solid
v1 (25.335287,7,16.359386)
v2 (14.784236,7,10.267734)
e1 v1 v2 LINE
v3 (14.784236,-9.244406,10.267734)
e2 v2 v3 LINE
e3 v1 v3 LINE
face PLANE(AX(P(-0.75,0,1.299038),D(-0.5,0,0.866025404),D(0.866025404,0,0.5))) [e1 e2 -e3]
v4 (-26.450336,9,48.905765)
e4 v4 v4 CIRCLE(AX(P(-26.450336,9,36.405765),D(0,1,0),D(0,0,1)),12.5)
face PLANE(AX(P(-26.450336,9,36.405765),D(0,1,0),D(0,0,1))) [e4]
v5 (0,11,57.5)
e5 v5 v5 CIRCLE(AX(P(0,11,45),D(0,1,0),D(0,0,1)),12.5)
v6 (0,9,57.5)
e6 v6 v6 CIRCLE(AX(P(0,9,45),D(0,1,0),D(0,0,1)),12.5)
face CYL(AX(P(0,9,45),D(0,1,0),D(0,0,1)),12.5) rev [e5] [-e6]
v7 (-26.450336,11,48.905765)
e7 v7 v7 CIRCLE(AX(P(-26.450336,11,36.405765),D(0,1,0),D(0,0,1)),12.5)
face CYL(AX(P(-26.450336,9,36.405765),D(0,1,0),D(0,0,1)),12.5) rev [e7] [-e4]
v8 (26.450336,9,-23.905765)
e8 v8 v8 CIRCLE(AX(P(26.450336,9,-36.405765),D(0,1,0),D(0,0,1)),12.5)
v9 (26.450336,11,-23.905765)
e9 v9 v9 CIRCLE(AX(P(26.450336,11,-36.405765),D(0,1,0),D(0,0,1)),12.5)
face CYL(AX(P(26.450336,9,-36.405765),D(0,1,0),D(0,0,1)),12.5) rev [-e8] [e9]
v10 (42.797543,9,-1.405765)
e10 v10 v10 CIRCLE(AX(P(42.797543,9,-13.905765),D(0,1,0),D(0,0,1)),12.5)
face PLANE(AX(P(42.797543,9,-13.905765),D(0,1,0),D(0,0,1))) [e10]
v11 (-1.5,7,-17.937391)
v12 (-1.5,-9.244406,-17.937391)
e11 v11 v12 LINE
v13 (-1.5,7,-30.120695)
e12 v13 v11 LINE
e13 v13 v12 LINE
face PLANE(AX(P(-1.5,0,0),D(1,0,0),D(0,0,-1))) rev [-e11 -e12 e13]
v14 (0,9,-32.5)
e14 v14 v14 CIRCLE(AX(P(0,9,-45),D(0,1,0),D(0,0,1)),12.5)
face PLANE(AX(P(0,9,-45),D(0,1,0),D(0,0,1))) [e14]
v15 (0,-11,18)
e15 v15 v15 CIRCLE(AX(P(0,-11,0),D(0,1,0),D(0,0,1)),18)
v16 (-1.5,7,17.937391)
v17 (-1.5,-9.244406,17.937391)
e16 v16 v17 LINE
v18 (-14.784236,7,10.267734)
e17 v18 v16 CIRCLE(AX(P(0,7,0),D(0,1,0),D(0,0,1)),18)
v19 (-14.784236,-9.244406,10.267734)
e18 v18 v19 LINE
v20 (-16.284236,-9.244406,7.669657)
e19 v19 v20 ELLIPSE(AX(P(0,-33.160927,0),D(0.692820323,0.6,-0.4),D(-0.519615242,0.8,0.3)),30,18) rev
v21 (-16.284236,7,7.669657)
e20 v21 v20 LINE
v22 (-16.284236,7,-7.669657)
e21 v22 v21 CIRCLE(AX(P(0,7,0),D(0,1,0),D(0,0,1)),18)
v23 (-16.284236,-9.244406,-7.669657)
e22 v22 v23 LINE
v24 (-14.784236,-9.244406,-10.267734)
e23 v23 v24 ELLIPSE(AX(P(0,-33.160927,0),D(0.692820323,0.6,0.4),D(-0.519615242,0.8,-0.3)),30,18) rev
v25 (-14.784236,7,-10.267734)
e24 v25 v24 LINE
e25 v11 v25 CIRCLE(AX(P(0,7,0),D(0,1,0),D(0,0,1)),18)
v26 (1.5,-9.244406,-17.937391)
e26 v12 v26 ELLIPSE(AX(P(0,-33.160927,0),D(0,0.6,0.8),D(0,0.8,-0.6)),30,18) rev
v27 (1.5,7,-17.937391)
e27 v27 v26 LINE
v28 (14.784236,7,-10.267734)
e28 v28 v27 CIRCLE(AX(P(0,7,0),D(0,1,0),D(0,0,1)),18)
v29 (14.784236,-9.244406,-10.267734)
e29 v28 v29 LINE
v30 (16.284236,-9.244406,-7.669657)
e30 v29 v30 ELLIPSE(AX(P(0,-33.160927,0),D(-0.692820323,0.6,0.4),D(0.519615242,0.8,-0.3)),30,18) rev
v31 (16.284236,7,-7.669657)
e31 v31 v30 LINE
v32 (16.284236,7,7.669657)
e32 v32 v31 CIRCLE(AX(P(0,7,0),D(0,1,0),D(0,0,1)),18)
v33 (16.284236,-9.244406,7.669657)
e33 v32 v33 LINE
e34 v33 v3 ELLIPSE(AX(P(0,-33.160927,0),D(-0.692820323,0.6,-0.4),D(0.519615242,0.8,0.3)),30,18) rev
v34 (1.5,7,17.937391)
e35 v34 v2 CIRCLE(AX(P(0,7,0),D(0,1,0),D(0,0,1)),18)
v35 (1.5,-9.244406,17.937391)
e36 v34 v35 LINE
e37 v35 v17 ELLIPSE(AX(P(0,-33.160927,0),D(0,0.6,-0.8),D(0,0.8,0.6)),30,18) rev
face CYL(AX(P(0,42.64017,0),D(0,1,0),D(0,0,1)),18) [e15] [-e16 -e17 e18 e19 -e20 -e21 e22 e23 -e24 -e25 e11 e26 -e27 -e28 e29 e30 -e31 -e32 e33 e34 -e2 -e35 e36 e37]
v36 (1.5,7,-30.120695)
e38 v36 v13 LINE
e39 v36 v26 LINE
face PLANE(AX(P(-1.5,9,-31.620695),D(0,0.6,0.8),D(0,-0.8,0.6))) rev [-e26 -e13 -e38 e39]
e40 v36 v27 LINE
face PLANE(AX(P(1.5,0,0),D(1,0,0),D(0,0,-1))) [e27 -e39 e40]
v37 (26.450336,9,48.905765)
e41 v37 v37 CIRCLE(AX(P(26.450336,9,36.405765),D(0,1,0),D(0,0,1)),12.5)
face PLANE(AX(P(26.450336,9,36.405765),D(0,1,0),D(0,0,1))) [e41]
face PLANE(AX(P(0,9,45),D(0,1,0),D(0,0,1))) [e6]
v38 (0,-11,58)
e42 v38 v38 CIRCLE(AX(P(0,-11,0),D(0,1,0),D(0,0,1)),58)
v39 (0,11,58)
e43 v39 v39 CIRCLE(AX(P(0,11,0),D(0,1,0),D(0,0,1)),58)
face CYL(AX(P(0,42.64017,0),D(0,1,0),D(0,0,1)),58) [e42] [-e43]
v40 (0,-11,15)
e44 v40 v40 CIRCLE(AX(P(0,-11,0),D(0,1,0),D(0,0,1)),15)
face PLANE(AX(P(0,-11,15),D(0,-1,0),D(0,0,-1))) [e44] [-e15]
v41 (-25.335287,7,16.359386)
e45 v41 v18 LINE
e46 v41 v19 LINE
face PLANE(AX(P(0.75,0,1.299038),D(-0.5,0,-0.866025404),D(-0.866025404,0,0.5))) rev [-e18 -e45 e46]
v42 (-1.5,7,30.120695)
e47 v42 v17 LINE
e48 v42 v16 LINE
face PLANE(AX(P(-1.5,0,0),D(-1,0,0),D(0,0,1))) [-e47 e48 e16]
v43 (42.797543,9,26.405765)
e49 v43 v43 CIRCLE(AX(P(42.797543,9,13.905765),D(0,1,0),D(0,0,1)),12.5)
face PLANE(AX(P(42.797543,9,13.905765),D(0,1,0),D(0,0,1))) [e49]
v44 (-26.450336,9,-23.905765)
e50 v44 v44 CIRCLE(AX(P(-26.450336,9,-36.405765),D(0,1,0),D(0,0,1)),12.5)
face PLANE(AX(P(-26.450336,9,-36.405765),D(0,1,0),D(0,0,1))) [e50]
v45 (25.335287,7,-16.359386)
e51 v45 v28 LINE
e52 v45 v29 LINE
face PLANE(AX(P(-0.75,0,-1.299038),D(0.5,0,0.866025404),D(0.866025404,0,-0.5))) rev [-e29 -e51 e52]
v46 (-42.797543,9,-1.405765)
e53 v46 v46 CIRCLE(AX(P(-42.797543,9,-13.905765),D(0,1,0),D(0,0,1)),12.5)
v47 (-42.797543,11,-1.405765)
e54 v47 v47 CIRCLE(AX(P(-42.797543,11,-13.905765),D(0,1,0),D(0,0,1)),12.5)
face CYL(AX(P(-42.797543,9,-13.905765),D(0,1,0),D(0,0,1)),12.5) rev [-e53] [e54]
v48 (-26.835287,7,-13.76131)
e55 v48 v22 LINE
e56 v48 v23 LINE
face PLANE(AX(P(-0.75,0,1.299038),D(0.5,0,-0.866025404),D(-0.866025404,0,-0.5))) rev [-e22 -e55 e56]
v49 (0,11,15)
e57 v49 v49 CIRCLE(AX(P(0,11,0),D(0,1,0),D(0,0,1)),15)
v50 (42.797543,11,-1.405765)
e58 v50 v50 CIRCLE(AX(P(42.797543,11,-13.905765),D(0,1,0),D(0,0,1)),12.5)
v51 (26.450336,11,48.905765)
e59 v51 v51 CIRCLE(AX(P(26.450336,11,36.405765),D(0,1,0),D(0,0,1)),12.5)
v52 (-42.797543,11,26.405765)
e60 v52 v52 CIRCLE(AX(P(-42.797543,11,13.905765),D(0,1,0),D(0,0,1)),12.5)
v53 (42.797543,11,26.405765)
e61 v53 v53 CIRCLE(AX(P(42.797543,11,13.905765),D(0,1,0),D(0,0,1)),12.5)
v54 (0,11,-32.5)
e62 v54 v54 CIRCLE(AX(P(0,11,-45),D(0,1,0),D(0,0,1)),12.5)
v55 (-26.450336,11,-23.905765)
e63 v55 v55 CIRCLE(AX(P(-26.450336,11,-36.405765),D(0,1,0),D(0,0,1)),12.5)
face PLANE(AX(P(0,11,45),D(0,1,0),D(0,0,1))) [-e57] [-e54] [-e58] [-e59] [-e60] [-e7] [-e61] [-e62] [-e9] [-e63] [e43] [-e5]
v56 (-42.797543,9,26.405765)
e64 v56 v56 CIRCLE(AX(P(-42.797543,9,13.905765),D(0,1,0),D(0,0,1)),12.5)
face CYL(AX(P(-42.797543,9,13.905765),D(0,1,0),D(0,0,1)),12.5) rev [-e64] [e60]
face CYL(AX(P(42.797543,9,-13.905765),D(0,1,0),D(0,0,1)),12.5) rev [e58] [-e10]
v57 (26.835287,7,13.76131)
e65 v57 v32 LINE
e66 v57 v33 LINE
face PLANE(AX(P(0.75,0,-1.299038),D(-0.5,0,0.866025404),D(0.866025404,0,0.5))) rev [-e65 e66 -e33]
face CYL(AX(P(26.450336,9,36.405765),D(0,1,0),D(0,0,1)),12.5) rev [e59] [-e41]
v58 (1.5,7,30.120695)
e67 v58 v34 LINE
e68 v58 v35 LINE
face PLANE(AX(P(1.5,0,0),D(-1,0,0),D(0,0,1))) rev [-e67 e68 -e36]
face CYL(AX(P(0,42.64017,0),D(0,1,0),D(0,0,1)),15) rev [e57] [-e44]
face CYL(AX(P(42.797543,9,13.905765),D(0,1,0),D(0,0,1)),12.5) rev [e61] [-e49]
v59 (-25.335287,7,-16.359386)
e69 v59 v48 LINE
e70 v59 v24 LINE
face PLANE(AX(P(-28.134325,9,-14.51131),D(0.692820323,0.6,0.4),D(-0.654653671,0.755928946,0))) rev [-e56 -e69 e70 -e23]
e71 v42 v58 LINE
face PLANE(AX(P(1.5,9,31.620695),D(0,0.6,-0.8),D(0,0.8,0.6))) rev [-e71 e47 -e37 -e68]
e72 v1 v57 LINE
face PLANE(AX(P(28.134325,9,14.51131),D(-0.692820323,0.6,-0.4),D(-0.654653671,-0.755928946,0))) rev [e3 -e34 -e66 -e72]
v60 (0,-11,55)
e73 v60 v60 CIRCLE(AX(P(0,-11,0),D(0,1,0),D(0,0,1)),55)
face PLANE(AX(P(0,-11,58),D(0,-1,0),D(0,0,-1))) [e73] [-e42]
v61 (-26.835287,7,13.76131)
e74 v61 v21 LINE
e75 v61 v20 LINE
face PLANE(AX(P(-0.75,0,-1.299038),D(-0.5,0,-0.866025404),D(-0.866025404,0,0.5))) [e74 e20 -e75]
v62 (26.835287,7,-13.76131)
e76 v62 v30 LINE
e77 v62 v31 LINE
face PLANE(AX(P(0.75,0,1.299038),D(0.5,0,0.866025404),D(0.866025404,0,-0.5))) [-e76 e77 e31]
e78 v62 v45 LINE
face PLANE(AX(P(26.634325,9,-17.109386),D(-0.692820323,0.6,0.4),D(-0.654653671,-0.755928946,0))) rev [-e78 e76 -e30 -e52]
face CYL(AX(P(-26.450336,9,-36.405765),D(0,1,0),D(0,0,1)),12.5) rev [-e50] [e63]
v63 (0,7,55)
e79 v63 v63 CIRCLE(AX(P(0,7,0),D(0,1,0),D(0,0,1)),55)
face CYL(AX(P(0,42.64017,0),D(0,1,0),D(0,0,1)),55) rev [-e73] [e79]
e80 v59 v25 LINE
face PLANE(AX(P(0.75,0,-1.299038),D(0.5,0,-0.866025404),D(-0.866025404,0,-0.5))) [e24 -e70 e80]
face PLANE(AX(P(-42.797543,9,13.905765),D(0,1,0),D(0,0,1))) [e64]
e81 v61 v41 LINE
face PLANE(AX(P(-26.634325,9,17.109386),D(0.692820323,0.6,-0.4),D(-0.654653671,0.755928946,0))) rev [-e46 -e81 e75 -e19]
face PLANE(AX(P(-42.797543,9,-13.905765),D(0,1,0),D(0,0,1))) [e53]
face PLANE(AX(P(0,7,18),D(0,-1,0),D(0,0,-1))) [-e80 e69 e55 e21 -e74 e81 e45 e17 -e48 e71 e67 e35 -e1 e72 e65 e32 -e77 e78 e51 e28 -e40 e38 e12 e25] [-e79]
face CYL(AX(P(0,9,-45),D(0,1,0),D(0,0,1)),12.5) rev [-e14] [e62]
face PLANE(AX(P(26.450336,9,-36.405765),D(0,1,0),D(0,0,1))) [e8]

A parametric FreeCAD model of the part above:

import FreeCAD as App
import Part
import Sketcher
from FreeCAD import Vector

doc = App.newDocument("Part")
body = doc.addObject("PartDesign::Body", "Body")

# Sketch on YZ plane
sketch1 = body.newObject("Sketcher::SketchObject", "Sketch")
sketch1.AttachmentSupport = (doc.getObject("YZ_Plane"), [""])
sketch1.MapMode = "FlatFace"
sketch1.addGeometry([
    Part.LineSegment(Vector(11, 15, 0), Vector(11, 58, 0)),  # 0
    Part.LineSegment(Vector(11, 58, 0), Vector(-11, 58, 0)),  # 1
    Part.LineSegment(Vector(-11, 58, 0), Vector(-11, 55, 0)),  # 2
    Part.LineSegment(Vector(-11, 55, 0), Vector(7, 55, 0)),  # 3
    Part.LineSegment(Vector(7, 55, 0), Vector(7, 18, 0)),  # 4
    Part.LineSegment(Vector(7, 18, 0), Vector(-11, 18, 0)),  # 5
    Part.LineSegment(Vector(-11, 18, 0), Vector(-11, 15, 0)),  # 6
    Part.LineSegment(Vector(-11, 15, 0), Vector(11, 15, 0)),  # 7
], False)
sketch1.addConstraint([
    Sketcher.Constraint("Coincident", 0, 2, 1, 1),
    Sketcher.Constraint("Coincident", 1, 2, 2, 1),
    Sketcher.Constraint("Coincident", 2, 2, 3, 1),
    Sketcher.Constraint("Coincident", 3, 2, 4, 1),
    Sketcher.Constraint("Coincident", 4, 2, 5, 1),
    Sketcher.Constraint("Coincident", 5, 2, 6, 1),
    Sketcher.Constraint("Coincident", 6, 2, 7, 1),
    Sketcher.Constraint("Coincident", 7, 2, 0, 1),
    Sketcher.Constraint("Vertical", 0),
    Sketcher.Constraint("Horizontal", 1),
    Sketcher.Constraint("Vertical", 2),
    Sketcher.Constraint("Horizontal", 3),
    Sketcher.Constraint("Vertical", 4),
    Sketcher.Constraint("Horizontal", 5),
    Sketcher.Constraint("Vertical", 6),
    Sketcher.Constraint("Horizontal", 7),
    Sketcher.Constraint("Vertical", 2, 2, 5, 2),
    Sketcher.Constraint("Equal", 2, 6),
    Sketcher.Constraint("DistanceX", 1, 2, 1, 1, 22.0),
    Sketcher.Constraint("DistanceX", 3, 1, 3, 2, 18.0),
    Sketcher.Constraint("DistanceY", 0, 1, 0, 2, 43.0),
    Sketcher.Constraint("DistanceY", 2, 2, 2, 1, 3.0),
    Sketcher.Constraint("DistanceX", -1, 1, 0, 2, 11.0),
    Sketcher.Constraint("DistanceY", -1, 1, 0, 2, 58.0),
])
revolution = body.newObject("PartDesign::Revolution", "Revolution")
revolution.Profile = sketch1
revolution.ReferenceAxis = (sketch1, ["H_Axis"])
revolution.Angle = 360

# Sketch on XZ plane
sketch2 = body.newObject("Sketcher::SketchObject", "Sketch001")
sketch2.AttachmentSupport = (doc.getObject("XZ_Plane"), [""])
sketch2.MapMode = "FlatFace"
sketch2.AttachmentOffset = App.Placement(Vector(0, 0, -11), App.Rotation())
sketch2.addGeometry([
    Part.Circle(Vector(0, -45, 0), Vector(0, 0, 1), 12),  # 0
    Part.Circle(Vector(26, -36, 0), Vector(0, 0, 1), 12),  # 1
    Part.Circle(Vector(43, -14, 0), Vector(0, 0, 1), 12),  # 2
    Part.Circle(Vector(43, 14, 0), Vector(0, 0, 1), 12),  # 3
    Part.Circle(Vector(26, 36, 0), Vector(0, 0, 1), 12),  # 4
    Part.Circle(Vector(0, 45, 0), Vector(0, 0, 1), 12),  # 5
    Part.Circle(Vector(-26, 36, 0), Vector(0, 0, 1), 12),  # 6
    Part.Circle(Vector(-43, 14, 0), Vector(0, 0, 1), 12),  # 7
    Part.Circle(Vector(-43, -14, 0), Vector(0, 0, 1), 12),  # 8
    Part.Circle(Vector(-26, -36, 0), Vector(0, 0, 1), 12),  # 9
], False)
sketch2.addConstraint([
    Sketcher.Constraint("Equal", 0, 1),
    Sketcher.Constraint("Equal", 1, 2),
    Sketcher.Constraint("Equal", 2, 3),
    Sketcher.Constraint("Equal", 3, 4),
    Sketcher.Constraint("Equal", 4, 5),
    Sketcher.Constraint("Equal", 5, 6),
    Sketcher.Constraint("Equal", 6, 7),
    Sketcher.Constraint("Equal", 7, 8),
    Sketcher.Constraint("Equal", 8, 9),
    Sketcher.Constraint("Symmetric", 0, 3, 5, 3, -1, 1),
    Sketcher.Constraint("Symmetric", 1, 3, 6, 3, -1, 1),
    Sketcher.Constraint("Symmetric", 2, 3, 7, 3, -1, 1),
    Sketcher.Constraint("Symmetric", 3, 3, 8, 3, -1, 1),
    Sketcher.Constraint("Symmetric", 4, 3, 9, 3, -1, 1),
    Sketcher.Constraint("Symmetric", 4, 3, 6, 3, -2),
    Sketcher.Constraint("Symmetric", 3, 3, 7, 3, -2),
    Sketcher.Constraint("PointOnObject", 0, 3, -2),
    Sketcher.Constraint("Diameter", 0, 25.0),
    Sketcher.Constraint("DistanceY", 0, 3, -1, 1, 45.0),
    Sketcher.Constraint("DistanceY", 1, 3, 2, 3, 22.5),
    Sketcher.Constraint("DistanceY", 2, 3, 3, 3, 27.811529),
    Sketcher.Constraint("DistanceX", 6, 3, 3, 3, 69.24788),
    Sketcher.Constraint("DistanceX", -1, 1, 1, 3, 26.450336),
])
pocket1 = body.newObject("PartDesign::Pocket", "Pocket")
pocket1.Profile = sketch2
pocket1.Length = 2
pocket1.Reversed = True

# Sketch on YZ plane
sketch3 = body.newObject("Sketcher::SketchObject", "Sketch002")
sketch3.AttachmentSupport = (doc.getObject("YZ_Plane"), [""])
sketch3.MapMode = "FlatFace"
sketch3.addGeometry([
    Part.LineSegment(Vector(-11, 17, 0), Vector(9, 17, 0)),
    Part.LineSegment(Vector(9, 17, 0), Vector(9, 32, 0)),
    Part.LineSegment(Vector(9, 32, 0), Vector(-11, 17, 0)),
], False)
sketch3.addConstraint([
    Sketcher.Constraint("Coincident", 0, 2, 1, 1),
    Sketcher.Constraint("Coincident", 1, 2, 2, 1),
    Sketcher.Constraint("Coincident", 2, 2, 0, 1),
    Sketcher.Constraint("Horizontal", 0),
    Sketcher.Constraint("Vertical", 1),
    Sketcher.Constraint("DistanceX", 0, 1, 0, 2, 20.0),
    Sketcher.Constraint("DistanceY", 1, 1, 1, 2, 15.0),
    Sketcher.Constraint("DistanceX", -1, 1, 0, 2, 9.0),
    Sketcher.Constraint("DistanceY", -1, 1, 0, 2, 16.620695),
])
pad1 = body.newObject("PartDesign::Pad", "Pad")
pad1.Profile = sketch3
pad1.Length = 3
pad1.Midplane = True
doc.recompute()

polarpattern = body.newObject("PartDesign::PolarPattern", "PolarPattern")
polarpattern.Originals = [pad1]
polarpattern.Axis = (doc.getObject("Y_Axis"), [""])
polarpattern.Angle = 360
polarpattern.Occurrences = 6
body.Tip = polarpattern

doc.recompute()
